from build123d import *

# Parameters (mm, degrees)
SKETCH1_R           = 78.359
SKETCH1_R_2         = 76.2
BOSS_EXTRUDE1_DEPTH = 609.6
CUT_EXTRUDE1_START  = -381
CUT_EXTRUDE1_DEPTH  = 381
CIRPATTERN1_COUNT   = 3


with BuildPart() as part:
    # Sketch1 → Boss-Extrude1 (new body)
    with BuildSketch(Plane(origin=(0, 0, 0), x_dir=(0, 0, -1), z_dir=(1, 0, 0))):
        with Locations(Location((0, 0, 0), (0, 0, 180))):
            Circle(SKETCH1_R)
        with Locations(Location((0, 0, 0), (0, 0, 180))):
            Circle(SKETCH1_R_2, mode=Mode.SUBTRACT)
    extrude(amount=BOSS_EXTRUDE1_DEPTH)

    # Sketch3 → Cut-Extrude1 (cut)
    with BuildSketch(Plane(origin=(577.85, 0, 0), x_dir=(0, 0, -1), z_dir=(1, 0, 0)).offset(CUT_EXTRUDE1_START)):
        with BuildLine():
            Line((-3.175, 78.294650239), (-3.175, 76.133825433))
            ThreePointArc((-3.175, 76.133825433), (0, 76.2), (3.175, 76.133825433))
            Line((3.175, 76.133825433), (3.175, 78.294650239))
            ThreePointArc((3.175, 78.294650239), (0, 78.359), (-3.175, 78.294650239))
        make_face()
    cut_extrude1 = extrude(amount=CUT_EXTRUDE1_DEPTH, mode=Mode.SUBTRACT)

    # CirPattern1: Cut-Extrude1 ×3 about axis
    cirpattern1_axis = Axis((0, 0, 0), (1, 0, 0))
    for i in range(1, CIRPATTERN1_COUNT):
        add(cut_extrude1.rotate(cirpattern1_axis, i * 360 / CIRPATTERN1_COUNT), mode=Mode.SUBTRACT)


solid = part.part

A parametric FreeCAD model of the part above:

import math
import FreeCAD as App
import Part
import Sketcher

V = App.Vector
Q = App.Units.Quantity

doc = App.newDocument("Part")
body = doc.addObject("PartDesign::Body", "Body")

# Sketch on YZ plane
sketch1 = body.newObject("Sketcher::SketchObject", "Sketch")
sketch1.AttachmentSupport = (doc.getObject("YZ_Plane"), [""])
sketch1.MapMode = "FlatFace"
sketch1.addGeometry(Part.Circle(V(0, 0, 0), V(0, 0, 1), 78.359), False)
sketch1.addGeometry(Part.Circle(V(0, 0, 0), V(0, 0, 1), 76.2), False)
sketch1.addConstraint(Sketcher.Constraint("Coincident", 0, 3, -1, 1))
sketch1.addConstraint(Sketcher.Constraint("Coincident", 1, 3, -1, 1))
sketch1.addConstraint(Sketcher.Constraint("Diameter", 1, Q("6 in")))
sketch1.addConstraint(Sketcher.Constraint("Diameter", 0, Q("6.17 in")))
pad1 = body.newObject("PartDesign::Pad", "Pad")
pad1.Profile = sketch1
pad1.Length = Q("24 in")

# Sketch on YZ plane
sketch2 = body.newObject("Sketcher::SketchObject", "Sketch001")
sketch2.AttachmentSupport = (doc.getObject("YZ_Plane"), [""])
sketch2.MapMode = "FlatFace"
sketch2.AttachmentOffset = App.Placement(V(0, 0, 7.75 * 25.4), App.Rotation())
sketch2.addGeometry(Part.LineSegment(V(78.29465, 3.175, 0), V(76.133825, 3.175, 0)), False)
sketch2.addGeometry(Part.ArcOfCircle(Part.Circle(V(0, 0, 0), V(0, 0, 1), 76.2), math.radians(-2.388015), math.radians(2.388015)), False)
sketch2.addGeometry(Part.LineSegment(V(76.133825, -3.175, 0), V(78.29465, -3.175, 0)), False)
sketch2.addGeometry(Part.ArcOfCircle(Part.Circle(V(0, 0, 0), V(0, 0, 1), 78.359), math.radians(-2.322183), math.radians(2.322183)), False)
sketch2.addConstraint(Sketcher.Constraint("Coincident", 0, 2, 1, 2))
sketch2.addConstraint(Sketcher.Constraint("Coincident", 1, 1, 2, 1))
sketch2.addConstraint(Sketcher.Constraint("Coincident", 2, 2, 3, 1))
sketch2.addConstraint(Sketcher.Constraint("Coincident", 3, 2, 0, 1))
sketch2.addConstraint(Sketcher.Constraint("Horizontal", 0))
sketch2.addConstraint(Sketcher.Constraint("Horizontal", 2))
sketch2.addConstraint(Sketcher.Constraint("Coincident", 1, 3, -1, 1))
sketch2.addConstraint(Sketcher.Constraint("Coincident", 3, 3, -1, 1))
sketch2.addConstraint(Sketcher.Constraint("Vertical", 0, 2, 1, 1))
sketch2.addConstraint(Sketcher.Constraint("Radius", 1, Q("3 in")))
sketch2.addConstraint(Sketcher.Constraint("Radius", 3, Q("3.085 in")))
sketch2.addConstraint(Sketcher.Constraint("DistanceY", 1, 1, 0, 2, Q("0.25 in")))
pocket1 = body.newObject("PartDesign::Pocket", "Pocket")
pocket1.Profile = sketch2
pocket1.Length = Q("15 in")
pocket1.Reversed = True
doc.recompute()

polarpattern = body.newObject("PartDesign::PolarPattern", "PolarPattern")
polarpattern.Originals = [pocket1]
polarpattern.Axis = (doc.getObject("X_Axis"), [""])
polarpattern.Angle = 360
polarpattern.Occurrences = 3
body.Tip = polarpattern

doc.recompute()
